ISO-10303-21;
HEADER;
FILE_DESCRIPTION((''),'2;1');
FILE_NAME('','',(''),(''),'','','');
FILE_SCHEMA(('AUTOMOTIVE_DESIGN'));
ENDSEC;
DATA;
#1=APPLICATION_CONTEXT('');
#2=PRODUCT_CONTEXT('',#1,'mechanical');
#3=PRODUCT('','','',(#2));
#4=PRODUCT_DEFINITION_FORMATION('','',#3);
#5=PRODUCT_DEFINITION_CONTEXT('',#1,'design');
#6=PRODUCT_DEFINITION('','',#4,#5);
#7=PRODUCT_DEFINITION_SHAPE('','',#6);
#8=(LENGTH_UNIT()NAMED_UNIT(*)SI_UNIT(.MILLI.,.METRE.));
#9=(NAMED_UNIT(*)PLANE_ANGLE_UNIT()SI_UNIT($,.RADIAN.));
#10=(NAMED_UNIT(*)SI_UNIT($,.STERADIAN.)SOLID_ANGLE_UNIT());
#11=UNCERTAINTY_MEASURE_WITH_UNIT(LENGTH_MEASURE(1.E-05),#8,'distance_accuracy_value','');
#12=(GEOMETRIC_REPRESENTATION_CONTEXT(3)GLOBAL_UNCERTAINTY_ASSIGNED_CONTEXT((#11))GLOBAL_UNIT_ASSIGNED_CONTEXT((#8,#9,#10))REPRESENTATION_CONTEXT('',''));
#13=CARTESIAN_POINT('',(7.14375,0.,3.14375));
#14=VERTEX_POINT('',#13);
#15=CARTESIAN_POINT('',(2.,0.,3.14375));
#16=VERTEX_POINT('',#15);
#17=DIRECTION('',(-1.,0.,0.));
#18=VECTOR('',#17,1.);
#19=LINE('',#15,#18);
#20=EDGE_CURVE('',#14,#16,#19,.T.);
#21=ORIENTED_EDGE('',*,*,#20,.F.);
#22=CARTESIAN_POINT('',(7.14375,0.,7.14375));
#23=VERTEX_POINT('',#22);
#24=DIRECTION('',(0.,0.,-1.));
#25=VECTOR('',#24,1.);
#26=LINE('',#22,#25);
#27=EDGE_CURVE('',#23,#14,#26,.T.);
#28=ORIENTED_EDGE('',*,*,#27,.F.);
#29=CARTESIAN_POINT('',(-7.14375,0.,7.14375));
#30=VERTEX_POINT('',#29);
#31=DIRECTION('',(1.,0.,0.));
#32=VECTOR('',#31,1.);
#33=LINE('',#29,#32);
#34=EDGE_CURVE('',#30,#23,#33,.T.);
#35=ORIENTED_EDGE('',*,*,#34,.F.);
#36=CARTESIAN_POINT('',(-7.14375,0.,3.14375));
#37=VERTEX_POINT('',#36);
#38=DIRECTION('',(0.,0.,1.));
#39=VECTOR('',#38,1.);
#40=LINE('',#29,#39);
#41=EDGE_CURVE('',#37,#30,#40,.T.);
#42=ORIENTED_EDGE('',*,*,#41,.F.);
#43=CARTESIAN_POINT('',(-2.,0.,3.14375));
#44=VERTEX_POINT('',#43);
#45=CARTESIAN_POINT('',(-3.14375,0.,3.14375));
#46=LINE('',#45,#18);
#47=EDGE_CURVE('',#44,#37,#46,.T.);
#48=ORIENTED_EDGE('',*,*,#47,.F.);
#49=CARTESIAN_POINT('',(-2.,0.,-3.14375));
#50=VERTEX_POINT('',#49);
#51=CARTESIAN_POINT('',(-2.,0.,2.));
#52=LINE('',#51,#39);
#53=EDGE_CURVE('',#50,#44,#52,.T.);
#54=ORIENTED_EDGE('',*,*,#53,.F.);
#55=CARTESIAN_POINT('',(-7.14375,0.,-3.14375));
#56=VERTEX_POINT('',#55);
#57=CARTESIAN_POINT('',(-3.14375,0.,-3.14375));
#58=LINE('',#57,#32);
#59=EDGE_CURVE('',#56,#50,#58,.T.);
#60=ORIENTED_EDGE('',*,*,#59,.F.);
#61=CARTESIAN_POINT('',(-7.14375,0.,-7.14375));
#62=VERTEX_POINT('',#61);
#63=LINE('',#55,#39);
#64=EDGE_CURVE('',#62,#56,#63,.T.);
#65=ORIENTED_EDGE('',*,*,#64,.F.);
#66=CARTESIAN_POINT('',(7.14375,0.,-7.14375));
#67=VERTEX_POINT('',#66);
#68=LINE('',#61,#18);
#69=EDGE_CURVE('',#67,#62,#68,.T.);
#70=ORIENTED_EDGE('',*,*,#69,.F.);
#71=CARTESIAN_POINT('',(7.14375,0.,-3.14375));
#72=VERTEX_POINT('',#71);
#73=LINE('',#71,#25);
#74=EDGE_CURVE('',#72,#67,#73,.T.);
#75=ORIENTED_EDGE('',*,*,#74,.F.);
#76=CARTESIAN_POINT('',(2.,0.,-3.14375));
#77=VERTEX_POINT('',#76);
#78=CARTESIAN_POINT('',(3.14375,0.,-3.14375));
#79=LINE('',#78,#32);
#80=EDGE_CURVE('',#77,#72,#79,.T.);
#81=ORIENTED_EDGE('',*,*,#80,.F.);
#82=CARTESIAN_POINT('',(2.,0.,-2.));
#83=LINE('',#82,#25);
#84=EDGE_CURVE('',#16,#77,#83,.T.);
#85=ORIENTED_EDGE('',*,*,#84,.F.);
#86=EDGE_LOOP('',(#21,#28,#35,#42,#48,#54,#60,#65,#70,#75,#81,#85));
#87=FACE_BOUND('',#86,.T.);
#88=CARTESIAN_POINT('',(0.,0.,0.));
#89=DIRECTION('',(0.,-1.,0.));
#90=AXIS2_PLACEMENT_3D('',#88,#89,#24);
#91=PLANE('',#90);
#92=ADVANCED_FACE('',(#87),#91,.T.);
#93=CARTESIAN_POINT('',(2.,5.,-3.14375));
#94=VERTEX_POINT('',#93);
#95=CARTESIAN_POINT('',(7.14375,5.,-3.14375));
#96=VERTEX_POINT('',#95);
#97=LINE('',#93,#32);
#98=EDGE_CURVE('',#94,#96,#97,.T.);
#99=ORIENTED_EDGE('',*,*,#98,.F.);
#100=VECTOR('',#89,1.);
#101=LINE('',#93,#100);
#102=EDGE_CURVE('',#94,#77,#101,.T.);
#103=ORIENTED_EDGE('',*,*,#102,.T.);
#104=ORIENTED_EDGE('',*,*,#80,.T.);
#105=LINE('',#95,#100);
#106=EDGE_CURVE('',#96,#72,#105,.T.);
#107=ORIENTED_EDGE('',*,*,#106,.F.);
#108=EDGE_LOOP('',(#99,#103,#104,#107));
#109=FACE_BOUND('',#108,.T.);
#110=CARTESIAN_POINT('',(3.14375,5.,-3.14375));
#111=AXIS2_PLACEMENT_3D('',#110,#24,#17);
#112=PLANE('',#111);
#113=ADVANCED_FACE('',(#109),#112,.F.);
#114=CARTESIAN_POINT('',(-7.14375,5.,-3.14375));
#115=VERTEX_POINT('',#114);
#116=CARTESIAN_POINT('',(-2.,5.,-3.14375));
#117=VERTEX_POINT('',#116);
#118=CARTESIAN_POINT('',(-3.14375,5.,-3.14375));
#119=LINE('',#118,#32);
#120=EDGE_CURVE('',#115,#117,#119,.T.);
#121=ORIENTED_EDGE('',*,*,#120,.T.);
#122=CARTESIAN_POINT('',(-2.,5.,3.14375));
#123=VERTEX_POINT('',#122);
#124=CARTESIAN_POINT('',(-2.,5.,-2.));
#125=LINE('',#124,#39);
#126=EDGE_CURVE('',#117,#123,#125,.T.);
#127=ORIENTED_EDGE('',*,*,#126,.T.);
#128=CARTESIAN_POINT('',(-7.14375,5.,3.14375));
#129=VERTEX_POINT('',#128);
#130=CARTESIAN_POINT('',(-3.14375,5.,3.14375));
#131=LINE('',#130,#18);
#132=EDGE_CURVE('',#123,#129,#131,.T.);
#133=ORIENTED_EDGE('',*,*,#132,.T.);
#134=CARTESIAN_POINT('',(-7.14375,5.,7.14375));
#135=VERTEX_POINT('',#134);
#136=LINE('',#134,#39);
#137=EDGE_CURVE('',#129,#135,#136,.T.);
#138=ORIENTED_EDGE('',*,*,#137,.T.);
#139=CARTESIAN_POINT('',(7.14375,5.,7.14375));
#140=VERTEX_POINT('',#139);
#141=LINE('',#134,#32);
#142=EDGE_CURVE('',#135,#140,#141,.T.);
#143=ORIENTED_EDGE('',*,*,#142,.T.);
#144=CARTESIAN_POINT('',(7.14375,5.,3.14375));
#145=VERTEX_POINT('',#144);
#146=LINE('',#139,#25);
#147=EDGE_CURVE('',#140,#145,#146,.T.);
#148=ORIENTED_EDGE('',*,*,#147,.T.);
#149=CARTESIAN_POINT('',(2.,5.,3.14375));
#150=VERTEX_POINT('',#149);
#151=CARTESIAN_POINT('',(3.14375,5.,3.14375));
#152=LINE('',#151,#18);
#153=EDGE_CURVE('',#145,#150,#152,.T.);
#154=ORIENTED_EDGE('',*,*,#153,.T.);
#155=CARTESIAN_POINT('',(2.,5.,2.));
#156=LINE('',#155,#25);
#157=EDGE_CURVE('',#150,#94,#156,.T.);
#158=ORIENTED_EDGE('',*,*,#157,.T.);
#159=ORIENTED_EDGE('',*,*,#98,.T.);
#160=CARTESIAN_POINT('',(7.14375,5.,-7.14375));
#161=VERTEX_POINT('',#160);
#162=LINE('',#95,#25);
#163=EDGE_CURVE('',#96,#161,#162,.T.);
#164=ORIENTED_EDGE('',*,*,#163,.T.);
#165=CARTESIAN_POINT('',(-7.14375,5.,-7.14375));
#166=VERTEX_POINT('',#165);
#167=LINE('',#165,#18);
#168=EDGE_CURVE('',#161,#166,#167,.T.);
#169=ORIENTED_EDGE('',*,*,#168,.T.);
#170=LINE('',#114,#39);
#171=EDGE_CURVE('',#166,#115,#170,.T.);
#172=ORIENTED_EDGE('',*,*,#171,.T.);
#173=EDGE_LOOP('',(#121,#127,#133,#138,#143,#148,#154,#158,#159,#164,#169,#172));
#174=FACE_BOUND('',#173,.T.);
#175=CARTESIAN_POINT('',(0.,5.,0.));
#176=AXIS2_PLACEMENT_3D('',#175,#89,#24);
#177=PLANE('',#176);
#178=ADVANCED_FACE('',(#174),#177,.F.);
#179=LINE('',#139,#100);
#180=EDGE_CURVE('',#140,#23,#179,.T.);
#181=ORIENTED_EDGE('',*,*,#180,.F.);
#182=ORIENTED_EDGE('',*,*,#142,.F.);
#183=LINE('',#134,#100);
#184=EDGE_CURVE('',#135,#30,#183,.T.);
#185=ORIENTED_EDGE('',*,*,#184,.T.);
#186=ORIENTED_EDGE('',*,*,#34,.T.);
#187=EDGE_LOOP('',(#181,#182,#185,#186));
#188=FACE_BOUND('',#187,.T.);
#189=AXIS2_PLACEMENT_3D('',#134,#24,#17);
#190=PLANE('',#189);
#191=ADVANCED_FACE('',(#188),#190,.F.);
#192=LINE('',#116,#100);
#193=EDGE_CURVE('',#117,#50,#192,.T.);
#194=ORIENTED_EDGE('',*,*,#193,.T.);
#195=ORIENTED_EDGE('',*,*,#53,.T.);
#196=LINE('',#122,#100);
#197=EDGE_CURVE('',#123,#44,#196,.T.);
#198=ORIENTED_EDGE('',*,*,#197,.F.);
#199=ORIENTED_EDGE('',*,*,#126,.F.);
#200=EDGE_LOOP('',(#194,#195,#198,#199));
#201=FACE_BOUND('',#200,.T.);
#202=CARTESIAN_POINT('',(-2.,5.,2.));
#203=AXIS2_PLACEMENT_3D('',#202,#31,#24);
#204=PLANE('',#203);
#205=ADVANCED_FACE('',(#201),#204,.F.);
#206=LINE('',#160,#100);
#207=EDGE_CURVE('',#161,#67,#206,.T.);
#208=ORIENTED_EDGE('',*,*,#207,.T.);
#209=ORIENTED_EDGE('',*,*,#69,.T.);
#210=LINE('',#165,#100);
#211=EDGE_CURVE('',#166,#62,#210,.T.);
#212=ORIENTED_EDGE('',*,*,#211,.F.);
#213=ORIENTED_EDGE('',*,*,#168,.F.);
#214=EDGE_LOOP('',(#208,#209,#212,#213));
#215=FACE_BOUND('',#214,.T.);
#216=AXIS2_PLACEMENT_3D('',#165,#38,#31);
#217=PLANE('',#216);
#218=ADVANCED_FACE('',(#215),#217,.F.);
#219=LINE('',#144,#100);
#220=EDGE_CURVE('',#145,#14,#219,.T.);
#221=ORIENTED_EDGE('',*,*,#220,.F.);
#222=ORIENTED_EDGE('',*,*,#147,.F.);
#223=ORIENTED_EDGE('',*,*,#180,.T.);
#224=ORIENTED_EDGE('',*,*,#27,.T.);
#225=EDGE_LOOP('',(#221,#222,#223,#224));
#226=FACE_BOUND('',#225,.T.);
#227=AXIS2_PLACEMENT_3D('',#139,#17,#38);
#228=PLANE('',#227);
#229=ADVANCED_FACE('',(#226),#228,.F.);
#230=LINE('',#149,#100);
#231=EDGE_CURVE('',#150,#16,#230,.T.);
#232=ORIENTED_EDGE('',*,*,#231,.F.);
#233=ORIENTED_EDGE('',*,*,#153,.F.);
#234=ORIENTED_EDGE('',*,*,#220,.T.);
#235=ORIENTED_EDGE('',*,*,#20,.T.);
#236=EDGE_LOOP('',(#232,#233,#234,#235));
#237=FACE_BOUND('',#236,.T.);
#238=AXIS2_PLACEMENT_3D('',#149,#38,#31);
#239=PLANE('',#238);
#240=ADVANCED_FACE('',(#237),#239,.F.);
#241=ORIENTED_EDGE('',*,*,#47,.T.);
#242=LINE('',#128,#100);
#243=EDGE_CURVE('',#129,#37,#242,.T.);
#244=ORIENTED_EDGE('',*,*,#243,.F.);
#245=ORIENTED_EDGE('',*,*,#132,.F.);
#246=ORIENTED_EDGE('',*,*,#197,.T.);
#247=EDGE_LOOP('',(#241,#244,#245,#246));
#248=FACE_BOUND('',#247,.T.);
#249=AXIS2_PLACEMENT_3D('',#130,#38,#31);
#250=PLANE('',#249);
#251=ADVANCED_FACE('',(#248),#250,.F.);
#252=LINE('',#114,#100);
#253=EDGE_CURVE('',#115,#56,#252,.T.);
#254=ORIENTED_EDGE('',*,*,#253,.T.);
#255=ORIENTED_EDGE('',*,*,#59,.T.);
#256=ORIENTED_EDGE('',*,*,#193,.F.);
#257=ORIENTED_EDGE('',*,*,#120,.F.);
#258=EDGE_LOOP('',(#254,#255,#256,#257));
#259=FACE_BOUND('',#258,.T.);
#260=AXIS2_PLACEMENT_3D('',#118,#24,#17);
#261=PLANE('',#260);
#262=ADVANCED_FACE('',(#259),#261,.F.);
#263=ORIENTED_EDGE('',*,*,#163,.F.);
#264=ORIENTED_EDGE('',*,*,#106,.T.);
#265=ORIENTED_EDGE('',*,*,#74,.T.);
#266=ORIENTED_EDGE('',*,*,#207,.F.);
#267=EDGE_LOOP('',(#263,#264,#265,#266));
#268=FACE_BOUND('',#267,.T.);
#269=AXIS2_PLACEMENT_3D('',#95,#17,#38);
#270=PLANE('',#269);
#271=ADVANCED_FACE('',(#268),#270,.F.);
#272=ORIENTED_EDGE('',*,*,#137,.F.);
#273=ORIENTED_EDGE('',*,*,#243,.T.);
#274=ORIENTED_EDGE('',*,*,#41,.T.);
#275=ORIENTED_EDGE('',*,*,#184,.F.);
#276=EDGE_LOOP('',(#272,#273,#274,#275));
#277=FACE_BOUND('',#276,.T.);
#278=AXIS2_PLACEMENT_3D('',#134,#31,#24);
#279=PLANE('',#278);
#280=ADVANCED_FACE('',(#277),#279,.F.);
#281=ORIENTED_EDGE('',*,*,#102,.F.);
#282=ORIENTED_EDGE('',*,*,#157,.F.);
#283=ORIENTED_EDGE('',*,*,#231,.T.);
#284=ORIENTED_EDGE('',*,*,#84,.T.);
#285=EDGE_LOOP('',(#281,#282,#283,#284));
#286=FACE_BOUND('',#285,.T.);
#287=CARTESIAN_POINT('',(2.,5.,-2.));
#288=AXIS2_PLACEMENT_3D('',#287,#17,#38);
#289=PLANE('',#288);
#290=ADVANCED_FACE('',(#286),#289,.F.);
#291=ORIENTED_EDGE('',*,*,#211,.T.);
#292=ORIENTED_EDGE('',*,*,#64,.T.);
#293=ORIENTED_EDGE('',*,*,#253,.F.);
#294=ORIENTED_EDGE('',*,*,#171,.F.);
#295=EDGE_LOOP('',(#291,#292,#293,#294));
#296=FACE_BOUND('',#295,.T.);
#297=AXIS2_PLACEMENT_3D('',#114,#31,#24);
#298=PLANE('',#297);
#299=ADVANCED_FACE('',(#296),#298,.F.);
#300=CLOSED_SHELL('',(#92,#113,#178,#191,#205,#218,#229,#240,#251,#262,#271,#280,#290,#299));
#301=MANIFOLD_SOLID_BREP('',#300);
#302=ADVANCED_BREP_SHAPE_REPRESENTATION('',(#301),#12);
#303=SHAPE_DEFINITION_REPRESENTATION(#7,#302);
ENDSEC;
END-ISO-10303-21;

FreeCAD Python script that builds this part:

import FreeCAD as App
import Part
import Sketcher

V = App.Vector
Q = App.Units.Quantity


def add_polygon(sketch, points):
    """Adds a closed chain of lines whose ends are joined by coincident constraints."""
    first, n = sketch.GeometryCount, len(points)
    for a, b in zip(points, points[1:] + points[:1]):
        sketch.addGeometry(Part.LineSegment(App.Vector(*a, 0), App.Vector(*b, 0)), False)
    for i in range(n):
        sketch.addConstraint(Sketcher.Constraint("Coincident", first + i, 2, first + (i + 1) % n, 1))

doc = App.newDocument("Part")
body = doc.addObject("PartDesign::Body", "Body")

sketch1 = doc.addObject("Sketcher::SketchObject", "Sketch")
body.addObject(sketch1)
sketch1.AttachmentSupport = (doc.XZ_Plane, [""])
sketch1.MapMode = "FlatFace"
add_polygon(sketch1, [(-7.14375, -3.14375), (-2, -3.14375), (-2, 3.14375), (-7.14375, 3.14375), (-7.14375, 7.14375), (7.14375, 7.14375), (7.14375, 3.14375), (2, 3.14375), (2, -3.14375), (7.14375, -3.14375), (7.14375, -7.14375), (-7.14375, -7.14375)])
sketch1.addConstraint([
    Sketcher.Constraint("Horizontal", 0),
    Sketcher.Constraint("Vertical", 1),
    Sketcher.Constraint("Horizontal", 2),
    Sketcher.Constraint("Vertical", 3),
    Sketcher.Constraint("Horizontal", 4),
    Sketcher.Constraint("Vertical", 5),
    Sketcher.Constraint("Horizontal", 6),
    Sketcher.Constraint("Vertical", 7),
    Sketcher.Constraint("Horizontal", 8),
    Sketcher.Constraint("Vertical", 9),
    Sketcher.Constraint("Horizontal", 10),
    Sketcher.Constraint("Vertical", 11),
    Sketcher.Constraint("Symmetric", 0, 2, 6, 2, -1, 1),
    Sketcher.Constraint("Symmetric", 2, 2, 8, 2, -1, 1),
    Sketcher.Constraint("Symmetric", 4, 2, 10, 2, -1, 1),
    Sketcher.Constraint("Symmetric", 2, 2, 5, 2, -2),
    Sketcher.Constraint("DistanceY", 3, 1, 3, 2, Q("4 mm")),
    Sketcher.Constraint("DistanceX", 0, 2, -1, 1, Q("2 mm")),
    Sketcher.Constraint("DistanceX", 4, 1, 4, 2, Q("14.2875 mm")),
    Sketcher.Constraint("DistanceY", 1, 1, 1, 2, Q("6.2875 mm")),
])
pad1 = doc.addObject("PartDesign::Pad", "Pad")
body.addObject(pad1)
pad1.Profile = sketch1
pad1.Length = 5
pad1.Reversed = True

doc.recompute()
